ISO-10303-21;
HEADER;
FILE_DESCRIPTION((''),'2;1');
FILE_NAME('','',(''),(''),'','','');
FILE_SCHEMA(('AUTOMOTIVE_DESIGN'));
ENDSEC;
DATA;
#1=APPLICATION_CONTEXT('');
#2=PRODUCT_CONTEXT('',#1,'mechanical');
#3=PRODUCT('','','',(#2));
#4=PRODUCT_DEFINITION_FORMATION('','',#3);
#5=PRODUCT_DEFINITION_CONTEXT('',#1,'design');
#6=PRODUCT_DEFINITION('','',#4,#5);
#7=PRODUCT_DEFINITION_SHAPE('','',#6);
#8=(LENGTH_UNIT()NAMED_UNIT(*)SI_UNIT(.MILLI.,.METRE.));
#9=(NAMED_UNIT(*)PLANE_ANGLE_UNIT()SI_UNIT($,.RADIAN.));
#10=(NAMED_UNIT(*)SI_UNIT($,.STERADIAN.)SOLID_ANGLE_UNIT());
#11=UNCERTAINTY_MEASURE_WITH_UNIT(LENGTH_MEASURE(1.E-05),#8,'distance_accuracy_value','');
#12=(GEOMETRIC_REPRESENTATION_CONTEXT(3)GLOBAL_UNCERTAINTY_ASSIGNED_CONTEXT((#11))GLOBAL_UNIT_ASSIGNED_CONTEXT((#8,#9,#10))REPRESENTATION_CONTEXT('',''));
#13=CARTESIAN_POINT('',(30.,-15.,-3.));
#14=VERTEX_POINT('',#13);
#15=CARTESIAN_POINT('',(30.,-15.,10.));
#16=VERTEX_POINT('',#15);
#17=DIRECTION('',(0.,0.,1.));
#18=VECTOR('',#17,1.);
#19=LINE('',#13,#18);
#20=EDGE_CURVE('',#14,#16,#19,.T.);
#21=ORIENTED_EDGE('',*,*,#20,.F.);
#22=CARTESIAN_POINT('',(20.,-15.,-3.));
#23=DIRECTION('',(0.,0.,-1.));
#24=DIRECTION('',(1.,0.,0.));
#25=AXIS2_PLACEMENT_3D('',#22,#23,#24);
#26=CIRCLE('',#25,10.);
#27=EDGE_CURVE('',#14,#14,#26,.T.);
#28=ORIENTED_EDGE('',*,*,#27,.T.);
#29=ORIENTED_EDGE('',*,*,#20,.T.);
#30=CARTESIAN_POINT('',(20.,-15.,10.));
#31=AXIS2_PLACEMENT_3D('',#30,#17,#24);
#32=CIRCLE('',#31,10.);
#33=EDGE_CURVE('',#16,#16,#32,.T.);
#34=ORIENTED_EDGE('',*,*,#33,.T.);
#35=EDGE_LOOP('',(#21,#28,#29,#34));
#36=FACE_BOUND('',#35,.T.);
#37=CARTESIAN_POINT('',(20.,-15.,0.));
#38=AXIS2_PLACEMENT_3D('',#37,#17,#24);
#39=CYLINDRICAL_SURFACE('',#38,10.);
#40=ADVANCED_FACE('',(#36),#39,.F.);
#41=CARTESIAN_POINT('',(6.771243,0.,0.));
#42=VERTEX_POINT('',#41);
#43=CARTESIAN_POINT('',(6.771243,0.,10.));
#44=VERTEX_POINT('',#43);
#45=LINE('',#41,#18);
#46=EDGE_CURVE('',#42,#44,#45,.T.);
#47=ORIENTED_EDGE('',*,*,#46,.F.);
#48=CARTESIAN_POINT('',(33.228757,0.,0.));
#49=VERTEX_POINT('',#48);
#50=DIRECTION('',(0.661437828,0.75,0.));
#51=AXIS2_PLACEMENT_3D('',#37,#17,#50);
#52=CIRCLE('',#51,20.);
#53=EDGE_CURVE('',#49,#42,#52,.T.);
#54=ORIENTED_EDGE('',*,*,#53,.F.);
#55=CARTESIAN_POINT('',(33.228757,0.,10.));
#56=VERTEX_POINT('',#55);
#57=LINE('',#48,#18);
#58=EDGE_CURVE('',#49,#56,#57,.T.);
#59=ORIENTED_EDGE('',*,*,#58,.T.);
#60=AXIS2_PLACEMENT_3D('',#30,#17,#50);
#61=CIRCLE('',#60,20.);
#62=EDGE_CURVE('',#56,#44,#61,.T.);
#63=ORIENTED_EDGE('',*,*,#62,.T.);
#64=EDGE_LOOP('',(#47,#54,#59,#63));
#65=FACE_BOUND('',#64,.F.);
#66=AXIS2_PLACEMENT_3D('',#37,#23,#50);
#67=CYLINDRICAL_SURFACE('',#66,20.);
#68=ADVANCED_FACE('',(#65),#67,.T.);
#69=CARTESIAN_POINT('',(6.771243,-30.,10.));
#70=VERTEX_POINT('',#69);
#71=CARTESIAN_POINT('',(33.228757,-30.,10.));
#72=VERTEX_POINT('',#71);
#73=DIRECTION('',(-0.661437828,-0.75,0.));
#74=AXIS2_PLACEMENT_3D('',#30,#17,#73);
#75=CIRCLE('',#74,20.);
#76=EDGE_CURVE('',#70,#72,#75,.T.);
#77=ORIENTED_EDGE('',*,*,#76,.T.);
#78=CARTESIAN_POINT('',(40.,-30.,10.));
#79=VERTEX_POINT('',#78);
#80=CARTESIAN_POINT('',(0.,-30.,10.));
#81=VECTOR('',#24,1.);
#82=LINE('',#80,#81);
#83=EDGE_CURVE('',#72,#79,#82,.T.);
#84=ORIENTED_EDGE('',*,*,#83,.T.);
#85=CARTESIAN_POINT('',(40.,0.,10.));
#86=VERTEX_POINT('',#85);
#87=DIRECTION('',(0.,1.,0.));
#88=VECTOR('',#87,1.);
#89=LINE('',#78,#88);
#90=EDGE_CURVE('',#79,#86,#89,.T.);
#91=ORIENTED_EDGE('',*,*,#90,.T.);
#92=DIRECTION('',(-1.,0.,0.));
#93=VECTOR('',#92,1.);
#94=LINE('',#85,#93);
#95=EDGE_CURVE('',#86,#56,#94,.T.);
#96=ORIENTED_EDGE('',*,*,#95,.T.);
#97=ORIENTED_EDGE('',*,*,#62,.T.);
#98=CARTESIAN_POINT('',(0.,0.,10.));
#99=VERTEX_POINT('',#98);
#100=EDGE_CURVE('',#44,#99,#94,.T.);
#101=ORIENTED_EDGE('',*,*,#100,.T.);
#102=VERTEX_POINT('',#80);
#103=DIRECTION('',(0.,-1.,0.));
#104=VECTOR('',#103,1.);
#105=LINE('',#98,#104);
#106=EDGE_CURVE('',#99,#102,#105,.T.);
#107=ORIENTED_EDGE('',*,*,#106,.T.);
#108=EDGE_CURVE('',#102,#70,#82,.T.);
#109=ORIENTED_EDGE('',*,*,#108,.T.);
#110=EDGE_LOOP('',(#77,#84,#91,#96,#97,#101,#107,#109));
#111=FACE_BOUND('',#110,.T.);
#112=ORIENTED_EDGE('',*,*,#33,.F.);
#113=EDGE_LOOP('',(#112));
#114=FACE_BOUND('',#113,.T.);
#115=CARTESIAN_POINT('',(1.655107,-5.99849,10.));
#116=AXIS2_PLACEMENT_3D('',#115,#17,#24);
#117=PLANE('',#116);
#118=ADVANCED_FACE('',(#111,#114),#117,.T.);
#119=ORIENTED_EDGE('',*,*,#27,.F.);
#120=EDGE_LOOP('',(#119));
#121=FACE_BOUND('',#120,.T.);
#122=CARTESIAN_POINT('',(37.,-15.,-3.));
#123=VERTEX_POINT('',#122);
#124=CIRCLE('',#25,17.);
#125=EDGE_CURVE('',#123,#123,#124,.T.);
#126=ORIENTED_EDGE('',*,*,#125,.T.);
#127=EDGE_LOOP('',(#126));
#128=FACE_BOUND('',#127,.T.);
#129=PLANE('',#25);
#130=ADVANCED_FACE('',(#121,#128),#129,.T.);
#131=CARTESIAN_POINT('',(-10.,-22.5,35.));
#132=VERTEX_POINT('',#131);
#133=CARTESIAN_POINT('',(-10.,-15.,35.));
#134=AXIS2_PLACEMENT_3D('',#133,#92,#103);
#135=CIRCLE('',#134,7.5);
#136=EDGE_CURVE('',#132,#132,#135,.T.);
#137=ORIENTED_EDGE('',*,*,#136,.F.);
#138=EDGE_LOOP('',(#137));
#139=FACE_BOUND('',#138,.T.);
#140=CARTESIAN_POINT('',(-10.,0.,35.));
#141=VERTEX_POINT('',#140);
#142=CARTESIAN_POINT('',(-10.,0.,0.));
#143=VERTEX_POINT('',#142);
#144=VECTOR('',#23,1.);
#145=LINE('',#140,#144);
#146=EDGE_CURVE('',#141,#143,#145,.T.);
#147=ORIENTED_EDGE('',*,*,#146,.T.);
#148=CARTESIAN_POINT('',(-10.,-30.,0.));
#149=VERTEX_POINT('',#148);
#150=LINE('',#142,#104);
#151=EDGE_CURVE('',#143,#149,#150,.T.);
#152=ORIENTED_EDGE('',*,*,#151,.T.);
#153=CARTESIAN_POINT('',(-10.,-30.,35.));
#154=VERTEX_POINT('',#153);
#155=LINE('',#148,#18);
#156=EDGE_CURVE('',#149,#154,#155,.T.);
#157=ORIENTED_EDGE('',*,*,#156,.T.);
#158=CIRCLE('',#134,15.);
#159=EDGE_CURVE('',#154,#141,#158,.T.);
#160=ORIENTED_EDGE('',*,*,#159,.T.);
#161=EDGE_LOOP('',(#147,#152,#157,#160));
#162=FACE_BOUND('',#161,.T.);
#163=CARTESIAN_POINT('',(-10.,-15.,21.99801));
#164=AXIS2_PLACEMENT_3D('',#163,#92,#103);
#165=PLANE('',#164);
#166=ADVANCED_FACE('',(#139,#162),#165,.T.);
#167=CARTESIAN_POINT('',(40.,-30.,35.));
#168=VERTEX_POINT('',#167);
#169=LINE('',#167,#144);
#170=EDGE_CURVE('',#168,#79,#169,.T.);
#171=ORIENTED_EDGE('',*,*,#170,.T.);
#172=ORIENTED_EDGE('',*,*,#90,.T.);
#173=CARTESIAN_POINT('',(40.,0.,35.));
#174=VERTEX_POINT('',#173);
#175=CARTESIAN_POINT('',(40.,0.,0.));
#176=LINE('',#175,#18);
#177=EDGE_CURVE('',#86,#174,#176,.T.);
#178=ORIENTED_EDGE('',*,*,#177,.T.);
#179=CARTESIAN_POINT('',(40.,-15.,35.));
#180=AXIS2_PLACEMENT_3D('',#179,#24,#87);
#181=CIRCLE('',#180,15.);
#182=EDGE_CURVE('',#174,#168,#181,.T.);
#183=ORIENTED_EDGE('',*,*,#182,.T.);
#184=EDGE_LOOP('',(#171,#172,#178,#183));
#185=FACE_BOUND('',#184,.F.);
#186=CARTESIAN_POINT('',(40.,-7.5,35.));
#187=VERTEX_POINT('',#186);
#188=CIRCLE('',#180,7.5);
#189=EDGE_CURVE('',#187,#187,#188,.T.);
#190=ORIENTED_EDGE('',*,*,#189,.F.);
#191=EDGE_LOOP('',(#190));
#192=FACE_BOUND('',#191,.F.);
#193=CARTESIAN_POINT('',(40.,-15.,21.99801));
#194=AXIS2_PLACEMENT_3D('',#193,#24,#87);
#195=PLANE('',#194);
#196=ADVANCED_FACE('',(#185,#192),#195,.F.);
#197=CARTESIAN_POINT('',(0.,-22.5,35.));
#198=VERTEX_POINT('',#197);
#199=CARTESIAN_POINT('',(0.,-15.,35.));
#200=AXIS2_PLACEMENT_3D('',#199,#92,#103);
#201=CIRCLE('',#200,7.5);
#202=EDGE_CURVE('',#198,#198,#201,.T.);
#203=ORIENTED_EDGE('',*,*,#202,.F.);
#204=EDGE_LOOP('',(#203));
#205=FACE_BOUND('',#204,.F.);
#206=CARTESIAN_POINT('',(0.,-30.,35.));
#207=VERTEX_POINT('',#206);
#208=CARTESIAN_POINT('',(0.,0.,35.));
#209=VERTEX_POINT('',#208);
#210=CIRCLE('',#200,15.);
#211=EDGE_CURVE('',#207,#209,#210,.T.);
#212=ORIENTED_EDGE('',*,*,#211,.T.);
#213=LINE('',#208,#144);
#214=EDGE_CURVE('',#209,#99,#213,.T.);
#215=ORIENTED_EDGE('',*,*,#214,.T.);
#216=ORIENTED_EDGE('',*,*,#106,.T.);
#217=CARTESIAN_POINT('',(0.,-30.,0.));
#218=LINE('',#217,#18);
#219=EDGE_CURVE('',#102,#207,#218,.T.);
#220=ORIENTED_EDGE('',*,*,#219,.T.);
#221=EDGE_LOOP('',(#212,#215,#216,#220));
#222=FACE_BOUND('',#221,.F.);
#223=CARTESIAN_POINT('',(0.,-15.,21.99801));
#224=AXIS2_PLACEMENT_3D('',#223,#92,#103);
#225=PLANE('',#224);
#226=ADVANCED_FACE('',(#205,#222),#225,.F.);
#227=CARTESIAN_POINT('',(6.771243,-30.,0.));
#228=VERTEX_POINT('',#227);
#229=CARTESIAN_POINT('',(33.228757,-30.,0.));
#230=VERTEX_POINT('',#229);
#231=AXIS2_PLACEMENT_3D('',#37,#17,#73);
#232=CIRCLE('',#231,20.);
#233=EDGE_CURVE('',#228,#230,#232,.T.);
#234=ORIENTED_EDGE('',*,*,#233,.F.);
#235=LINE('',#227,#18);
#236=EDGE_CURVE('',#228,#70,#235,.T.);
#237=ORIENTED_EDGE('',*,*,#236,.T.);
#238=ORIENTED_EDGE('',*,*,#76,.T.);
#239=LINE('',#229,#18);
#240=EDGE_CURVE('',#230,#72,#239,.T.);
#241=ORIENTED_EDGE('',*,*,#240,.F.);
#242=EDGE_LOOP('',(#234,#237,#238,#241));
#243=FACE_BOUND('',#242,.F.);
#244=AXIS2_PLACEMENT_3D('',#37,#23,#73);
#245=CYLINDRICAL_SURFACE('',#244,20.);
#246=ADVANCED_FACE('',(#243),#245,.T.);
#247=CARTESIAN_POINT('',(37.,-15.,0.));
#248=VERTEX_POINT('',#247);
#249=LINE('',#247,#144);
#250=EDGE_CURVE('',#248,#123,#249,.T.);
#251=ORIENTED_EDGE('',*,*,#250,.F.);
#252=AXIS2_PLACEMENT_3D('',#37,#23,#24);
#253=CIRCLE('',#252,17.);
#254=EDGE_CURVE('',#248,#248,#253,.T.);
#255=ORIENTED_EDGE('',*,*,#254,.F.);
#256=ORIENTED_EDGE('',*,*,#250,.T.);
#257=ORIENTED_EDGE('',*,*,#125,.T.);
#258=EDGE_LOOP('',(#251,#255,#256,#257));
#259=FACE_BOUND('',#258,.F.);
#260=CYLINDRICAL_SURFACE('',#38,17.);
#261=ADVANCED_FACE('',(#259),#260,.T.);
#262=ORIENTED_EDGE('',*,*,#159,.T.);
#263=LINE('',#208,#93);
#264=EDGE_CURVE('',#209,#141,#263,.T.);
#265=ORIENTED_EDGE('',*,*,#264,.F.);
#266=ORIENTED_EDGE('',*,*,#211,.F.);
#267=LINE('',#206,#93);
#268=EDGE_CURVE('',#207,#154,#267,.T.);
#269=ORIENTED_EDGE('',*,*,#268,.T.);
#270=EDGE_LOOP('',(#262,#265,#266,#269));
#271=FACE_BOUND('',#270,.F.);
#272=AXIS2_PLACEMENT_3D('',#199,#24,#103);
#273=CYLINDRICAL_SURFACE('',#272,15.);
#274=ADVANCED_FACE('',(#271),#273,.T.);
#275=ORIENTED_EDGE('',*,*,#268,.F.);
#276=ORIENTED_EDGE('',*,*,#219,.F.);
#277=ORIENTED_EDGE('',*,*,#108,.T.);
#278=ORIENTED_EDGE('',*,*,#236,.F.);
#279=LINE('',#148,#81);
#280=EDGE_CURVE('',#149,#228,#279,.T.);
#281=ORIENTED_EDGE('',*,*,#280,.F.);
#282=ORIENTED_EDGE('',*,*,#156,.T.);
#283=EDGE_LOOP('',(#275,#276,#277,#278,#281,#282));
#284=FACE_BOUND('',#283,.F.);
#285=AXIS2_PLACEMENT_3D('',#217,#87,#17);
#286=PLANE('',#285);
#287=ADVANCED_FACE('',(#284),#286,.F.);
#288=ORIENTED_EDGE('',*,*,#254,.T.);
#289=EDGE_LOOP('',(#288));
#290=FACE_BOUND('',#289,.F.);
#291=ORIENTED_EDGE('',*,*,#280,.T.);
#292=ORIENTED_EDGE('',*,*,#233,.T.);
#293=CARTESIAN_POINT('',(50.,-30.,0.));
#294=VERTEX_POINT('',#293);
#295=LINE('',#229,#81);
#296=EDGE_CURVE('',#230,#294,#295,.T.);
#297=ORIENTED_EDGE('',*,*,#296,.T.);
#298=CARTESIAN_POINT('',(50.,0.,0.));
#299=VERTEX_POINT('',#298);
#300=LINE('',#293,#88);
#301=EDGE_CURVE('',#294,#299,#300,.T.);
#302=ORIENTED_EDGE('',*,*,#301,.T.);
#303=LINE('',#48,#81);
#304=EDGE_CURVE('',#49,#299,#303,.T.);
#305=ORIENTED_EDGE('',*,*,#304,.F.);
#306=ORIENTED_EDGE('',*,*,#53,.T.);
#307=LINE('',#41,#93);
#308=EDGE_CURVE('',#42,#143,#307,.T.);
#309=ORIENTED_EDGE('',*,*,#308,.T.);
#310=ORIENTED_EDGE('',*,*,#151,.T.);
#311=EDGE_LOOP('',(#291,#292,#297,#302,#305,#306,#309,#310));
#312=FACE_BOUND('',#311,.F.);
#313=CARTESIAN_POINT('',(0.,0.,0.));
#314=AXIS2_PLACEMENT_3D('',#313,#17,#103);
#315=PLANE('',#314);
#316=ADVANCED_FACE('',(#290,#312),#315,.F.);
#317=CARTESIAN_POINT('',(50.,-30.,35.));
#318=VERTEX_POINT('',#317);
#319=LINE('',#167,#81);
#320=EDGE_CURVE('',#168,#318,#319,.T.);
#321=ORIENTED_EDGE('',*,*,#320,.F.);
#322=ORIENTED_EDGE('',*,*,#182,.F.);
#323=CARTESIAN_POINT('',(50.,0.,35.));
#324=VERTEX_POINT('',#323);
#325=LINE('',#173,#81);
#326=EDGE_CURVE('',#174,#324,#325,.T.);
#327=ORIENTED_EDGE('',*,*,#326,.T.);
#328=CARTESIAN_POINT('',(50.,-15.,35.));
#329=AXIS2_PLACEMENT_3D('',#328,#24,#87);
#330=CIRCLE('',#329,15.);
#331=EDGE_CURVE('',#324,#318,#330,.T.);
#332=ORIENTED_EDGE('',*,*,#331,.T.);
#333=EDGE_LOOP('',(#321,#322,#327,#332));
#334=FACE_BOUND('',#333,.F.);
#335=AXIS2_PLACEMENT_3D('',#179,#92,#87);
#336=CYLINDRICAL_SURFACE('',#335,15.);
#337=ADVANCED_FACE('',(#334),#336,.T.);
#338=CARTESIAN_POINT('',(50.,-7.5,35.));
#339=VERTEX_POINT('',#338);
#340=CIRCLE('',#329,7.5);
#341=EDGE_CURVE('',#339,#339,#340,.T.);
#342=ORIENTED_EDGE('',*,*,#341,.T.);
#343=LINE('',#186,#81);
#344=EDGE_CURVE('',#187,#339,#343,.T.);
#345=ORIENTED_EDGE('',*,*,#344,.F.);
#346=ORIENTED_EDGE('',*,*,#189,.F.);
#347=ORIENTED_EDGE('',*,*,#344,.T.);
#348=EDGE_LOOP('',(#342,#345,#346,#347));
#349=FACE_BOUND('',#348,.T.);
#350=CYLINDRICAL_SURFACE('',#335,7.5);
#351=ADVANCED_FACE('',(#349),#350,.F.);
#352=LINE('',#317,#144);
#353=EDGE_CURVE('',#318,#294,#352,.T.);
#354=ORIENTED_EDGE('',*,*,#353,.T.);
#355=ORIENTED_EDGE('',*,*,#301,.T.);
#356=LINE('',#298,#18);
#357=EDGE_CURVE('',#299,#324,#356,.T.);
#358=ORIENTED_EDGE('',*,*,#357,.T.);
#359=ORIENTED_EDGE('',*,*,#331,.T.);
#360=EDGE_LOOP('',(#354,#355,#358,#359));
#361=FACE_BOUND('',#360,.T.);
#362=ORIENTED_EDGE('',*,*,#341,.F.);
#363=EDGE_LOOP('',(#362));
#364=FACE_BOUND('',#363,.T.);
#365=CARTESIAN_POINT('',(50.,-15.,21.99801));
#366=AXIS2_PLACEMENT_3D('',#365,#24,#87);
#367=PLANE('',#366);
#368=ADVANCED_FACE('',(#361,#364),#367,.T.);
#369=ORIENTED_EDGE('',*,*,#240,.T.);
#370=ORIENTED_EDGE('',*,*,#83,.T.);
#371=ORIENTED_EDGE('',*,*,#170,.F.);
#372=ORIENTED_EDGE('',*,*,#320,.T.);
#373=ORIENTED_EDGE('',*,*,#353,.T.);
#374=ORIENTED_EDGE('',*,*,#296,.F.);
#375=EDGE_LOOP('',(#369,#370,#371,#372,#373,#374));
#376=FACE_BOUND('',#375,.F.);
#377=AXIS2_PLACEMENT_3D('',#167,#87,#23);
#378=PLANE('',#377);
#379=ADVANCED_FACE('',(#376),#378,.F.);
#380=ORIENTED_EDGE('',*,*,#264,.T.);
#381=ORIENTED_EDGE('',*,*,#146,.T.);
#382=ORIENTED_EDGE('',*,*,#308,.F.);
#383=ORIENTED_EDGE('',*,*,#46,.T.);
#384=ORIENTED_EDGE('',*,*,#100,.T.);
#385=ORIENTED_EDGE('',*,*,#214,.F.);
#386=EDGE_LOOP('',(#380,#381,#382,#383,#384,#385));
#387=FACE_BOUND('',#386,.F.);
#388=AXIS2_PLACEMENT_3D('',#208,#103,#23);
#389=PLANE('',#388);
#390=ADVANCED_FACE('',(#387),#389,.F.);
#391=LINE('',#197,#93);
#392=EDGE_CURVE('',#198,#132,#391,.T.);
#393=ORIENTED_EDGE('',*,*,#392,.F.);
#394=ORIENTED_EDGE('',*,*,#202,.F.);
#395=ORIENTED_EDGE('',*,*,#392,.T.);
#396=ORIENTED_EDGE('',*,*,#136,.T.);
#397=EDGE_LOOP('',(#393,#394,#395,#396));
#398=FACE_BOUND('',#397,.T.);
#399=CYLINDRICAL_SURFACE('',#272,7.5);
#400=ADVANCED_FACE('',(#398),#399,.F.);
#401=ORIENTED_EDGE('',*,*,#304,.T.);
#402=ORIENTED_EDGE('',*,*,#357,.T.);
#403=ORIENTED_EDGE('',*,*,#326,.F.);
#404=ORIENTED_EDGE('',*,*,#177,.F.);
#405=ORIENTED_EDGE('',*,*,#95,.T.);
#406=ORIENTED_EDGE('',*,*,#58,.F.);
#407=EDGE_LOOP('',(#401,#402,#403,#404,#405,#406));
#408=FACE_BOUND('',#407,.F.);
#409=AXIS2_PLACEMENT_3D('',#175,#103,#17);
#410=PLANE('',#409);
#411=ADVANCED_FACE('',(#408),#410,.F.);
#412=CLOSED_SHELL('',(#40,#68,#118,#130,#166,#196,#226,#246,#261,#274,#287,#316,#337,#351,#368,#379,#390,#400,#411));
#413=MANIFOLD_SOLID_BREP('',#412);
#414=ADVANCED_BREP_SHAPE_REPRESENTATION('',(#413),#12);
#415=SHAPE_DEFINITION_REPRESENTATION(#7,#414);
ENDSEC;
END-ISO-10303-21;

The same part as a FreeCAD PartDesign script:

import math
import FreeCAD as App
import Part
import Sketcher
from FreeCAD import Vector

doc = App.newDocument("Part")
body = doc.addObject("PartDesign::Body", "Body")

sketch1 = body.newObject("Sketcher::SketchObject", "Sketch")
sketch1.AttachmentSupport = (doc.getObject("XY_Plane"), [""])
sketch1.MapMode = "FlatFace"
sketch1.addGeometry([
    Part.LineSegment(Vector(0, 0, 0), Vector(0, -30, 0)),
    Part.LineSegment(Vector(0, -30, 0), Vector(7, -30, 0)),
    Part.ArcOfCircle(Part.Circle(Vector(20, -15, 0), Vector(0, 0, 1), 20), math.radians(-131), math.radians(-49)),
    Part.LineSegment(Vector(33, -30, 0), Vector(40, -30, 0)),
    Part.LineSegment(Vector(40, -30, 0), Vector(40, 0, 0)),
    Part.LineSegment(Vector(40, 0, 0), Vector(33, 0, 0)),
    Part.ArcOfCircle(Part.Circle(Vector(20, -15, 0), Vector(0, 0, 1), 20), math.radians(49), math.radians(131)),
    Part.LineSegment(Vector(7, 0, 0), Vector(0, 0, 0)),
    Part.Circle(Vector(20, -15, 0), Vector(0, 0, 1), 10),
], False)
sketch1.addConstraint([
    Sketcher.Constraint("Coincident", 0, 2, 1, 1),
    Sketcher.Constraint("Coincident", 1, 2, 2, 1),
    Sketcher.Constraint("Coincident", 2, 2, 3, 1),
    Sketcher.Constraint("Coincident", 3, 2, 4, 1),
    Sketcher.Constraint("Coincident", 4, 2, 5, 1),
    Sketcher.Constraint("Coincident", 5, 2, 6, 1),
    Sketcher.Constraint("Coincident", 6, 2, 7, 1),
    Sketcher.Constraint("Coincident", 7, 2, 0, 1),
    Sketcher.Constraint("Vertical", 0),
    Sketcher.Constraint("Horizontal", 1),
    Sketcher.Constraint("Horizontal", 3),
    Sketcher.Constraint("Vertical", 4),
    Sketcher.Constraint("Horizontal", 5),
    Sketcher.Constraint("Horizontal", 7),
    Sketcher.Constraint("Coincident", 7, 2, -1, 1),
    Sketcher.Constraint("Coincident", 6, 3, 2, 3),
    Sketcher.Constraint("Coincident", 8, 3, 2, 3),
    Sketcher.Constraint("Equal", 2, 6),
    Sketcher.Constraint("PointOnObject", 4, 2, -1),
    Sketcher.Constraint("Horizontal", 1, 2, 2, 2),
    Sketcher.Constraint("Vertical", 2, 2, 5, 2),
    Sketcher.Constraint("Equal", 1, 3),
    Sketcher.Constraint("Diameter", 8, 20.0),
    Sketcher.Constraint("Radius", 2, 20.0),
    Sketcher.Constraint("DistanceY", 0, 2, 0, 1, 30.0),
    Sketcher.Constraint("DistanceX", -1, 1, 2, 3, 20.0),
])
pad1 = body.newObject("PartDesign::Pad", "Pad")
pad1.Profile = sketch1
pad1.Length = 10

sketch2 = body.newObject("Sketcher::SketchObject", "Sketch001")
sketch2.AttachmentSupport = (doc.getObject("XY_Plane"), [""])
sketch2.MapMode = "FlatFace"
sketch2.addGeometry([
    Part.Circle(Vector(20, -15, 0), Vector(0, 0, 1), 17),
    Part.Circle(Vector(20, -15, 0), Vector(0, 0, 1), 10),
], False)
sketch2.addConstraint([
    Sketcher.Constraint("Coincident", 1, 3, 0, 3),
    Sketcher.Constraint("Diameter", 0, 34.0),
    Sketcher.Constraint("Diameter", 1, 20.0),
    Sketcher.Constraint("DistanceX", -1, 1, 0, 3, 20.0),
    Sketcher.Constraint("DistanceY", 0, 3, -1, 1, 15.0),
])
pad2 = body.newObject("PartDesign::Pad", "Pad001")
pad2.Profile = sketch2
pad2.Length = 3
pad2.Reversed = True

sketch3 = body.newObject("Sketcher::SketchObject", "Sketch002")
sketch3.AttachmentSupport = (doc.getObject("YZ_Plane"), [""])
sketch3.MapMode = "FlatFace"
sketch3.AttachmentOffset = App.Placement(Vector(0, 0, 40), App.Rotation())
sketch3.addGeometry([
    Part.LineSegment(Vector(-30, 35, 0), Vector(-30, 0, 0)),
    Part.LineSegment(Vector(-30, 0, 0), Vector(0, 0, 0)),
    Part.LineSegment(Vector(0, 0, 0), Vector(0, 35, 0)),
    Part.ArcOfCircle(Part.Circle(Vector(-15, 35, 0), Vector(0, 0, 1), 15), math.radians(0), math.radians(180)),
    Part.Circle(Vector(-15, 35, 0), Vector(0, 0, 1), 8),
], False)
sketch3.addConstraint([
    Sketcher.Constraint("Coincident", 0, 2, 1, 1),
    Sketcher.Constraint("Coincident", 1, 2, 2, 1),
    Sketcher.Constraint("Tangent", 2, 2, 3, 1),
    Sketcher.Constraint("Tangent", 3, 2, 0, 1),
    Sketcher.Constraint("Vertical", 0),
    Sketcher.Constraint("Horizontal", 1),
    Sketcher.Constraint("Vertical", 2),
    Sketcher.Constraint("Coincident", 1, 2, -1, 1),
    Sketcher.Constraint("Coincident", 4, 3, 3, 3),
    Sketcher.Constraint("Diameter", 4, 15.0),
    Sketcher.Constraint("Radius", 3, 15.0),
    Sketcher.Constraint("DistanceY", 0, 2, 0, 1, 35.0),
])
pad3 = body.newObject("PartDesign::Pad", "Pad002")
pad3.Profile = sketch3
pad3.Length = 10

sketch4 = body.newObject("Sketcher::SketchObject", "Sketch003")
sketch4.AttachmentSupport = (doc.getObject("YZ_Plane"), [""])
sketch4.MapMode = "FlatFace"
sketch4.addGeometry([
    Part.ArcOfCircle(Part.Circle(Vector(-15, 35, 0), Vector(0, 0, 1), 15), math.radians(0), math.radians(180)),
    Part.LineSegment(Vector(0, 35, 0), Vector(0, 0, 0)),
    Part.LineSegment(Vector(0, 0, 0), Vector(-30, 0, 0)),
    Part.LineSegment(Vector(-30, 0, 0), Vector(-30, 35, 0)),
    Part.Circle(Vector(-15, 35, 0), Vector(0, 0, 1), 8),
], False)
sketch4.addConstraint([
    Sketcher.Constraint("Tangent", 0, 1, 1, 1),
    Sketcher.Constraint("Coincident", 1, 2, 2, 1),
    Sketcher.Constraint("Coincident", 2, 2, 3, 1),
    Sketcher.Constraint("Tangent", 3, 2, 0, 2),
    Sketcher.Constraint("Vertical", 1),
    Sketcher.Constraint("Horizontal", 2),
    Sketcher.Constraint("Vertical", 3),
    Sketcher.Constraint("Coincident", 1, 2, -1, 1),
    Sketcher.Constraint("Coincident", 4, 3, 0, 3),
    Sketcher.Constraint("Diameter", 4, 15.0),
    Sketcher.Constraint("Radius", 0, 15.0),
    Sketcher.Constraint("DistanceY", 1, 2, 1, 1, 35.0),
])
pad4 = body.newObject("PartDesign::Pad", "Pad003")
pad4.Profile = sketch4
pad4.Length = 10
pad4.Reversed = True

doc.recompute()
